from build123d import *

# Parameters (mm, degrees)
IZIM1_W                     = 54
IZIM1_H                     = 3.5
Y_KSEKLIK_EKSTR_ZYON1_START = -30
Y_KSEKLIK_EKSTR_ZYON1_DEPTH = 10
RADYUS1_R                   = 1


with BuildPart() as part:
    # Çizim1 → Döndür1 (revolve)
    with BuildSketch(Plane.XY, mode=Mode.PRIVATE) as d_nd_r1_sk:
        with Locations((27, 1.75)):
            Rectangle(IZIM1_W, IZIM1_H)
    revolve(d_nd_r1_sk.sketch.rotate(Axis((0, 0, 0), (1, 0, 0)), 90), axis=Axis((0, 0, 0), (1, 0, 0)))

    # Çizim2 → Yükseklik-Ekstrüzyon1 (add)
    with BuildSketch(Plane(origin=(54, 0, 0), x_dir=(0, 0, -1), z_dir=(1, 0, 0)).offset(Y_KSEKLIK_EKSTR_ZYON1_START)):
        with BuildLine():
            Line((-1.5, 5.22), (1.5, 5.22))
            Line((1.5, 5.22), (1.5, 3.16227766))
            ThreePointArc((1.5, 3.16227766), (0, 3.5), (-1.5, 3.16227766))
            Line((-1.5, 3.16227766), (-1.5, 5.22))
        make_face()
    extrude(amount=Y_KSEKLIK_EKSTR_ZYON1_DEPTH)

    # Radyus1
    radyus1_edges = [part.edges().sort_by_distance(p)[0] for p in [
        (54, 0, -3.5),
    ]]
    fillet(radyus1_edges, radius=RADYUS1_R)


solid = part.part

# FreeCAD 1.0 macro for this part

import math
import FreeCAD as App
import Part
import Sketcher
Q = App.Units.Quantity


def edges_at(feature, points):
    """Names of the edges that pass closest to the given points."""
    edges = feature.Shape.Edges
    near = lambda p: min(range(len(edges)), key=lambda i: edges[i].distToShape(Part.Vertex(*p))[0])
    return sorted({f"Edge{near(p) + 1}" for p in points})

doc = App.newDocument("Part")
body = doc.addObject("PartDesign::Body", "Body")

sketch1 = doc.addObject("Sketcher::SketchObject", "Sketch")
body.addObject(sketch1)
sketch1.AttachmentSupport = (doc.XY_Plane, [""])
sketch1.MapMode = "FlatFace"
sketch1.addGeometry([
    Part.LineSegment(App.Vector(0, 3.5, 0), App.Vector(0, 0, 0)),
    Part.LineSegment(App.Vector(0, 0, 0), App.Vector(54, 0, 0)),
    Part.LineSegment(App.Vector(54, 0, 0), App.Vector(54, 3.5, 0)),
    Part.LineSegment(App.Vector(54, 3.5, 0), App.Vector(0, 3.5, 0)),
], False)
sketch1.addConstraint([
    Sketcher.Constraint("Coincident", 0, 2, 1, 1),
    Sketcher.Constraint("Coincident", 1, 2, 2, 1),
    Sketcher.Constraint("Coincident", 2, 2, 3, 1),
    Sketcher.Constraint("Coincident", 3, 2, 0, 1),
    Sketcher.Constraint("Vertical", 0),
    Sketcher.Constraint("Horizontal", 1),
    Sketcher.Constraint("Vertical", 2),
    Sketcher.Constraint("Horizontal", 3),
    Sketcher.Constraint("Coincident", 0, 2, -1, 1),
    Sketcher.Constraint("DistanceX", 1, 1, 1, 2, Q("54 mm")),
    Sketcher.Constraint("DistanceY", 0, 2, 0, 1, Q("3.5 mm")),
])
revolution = doc.addObject("PartDesign::Revolution", "Revolution")
body.addObject(revolution)
revolution.Profile = sketch1
revolution.ReferenceAxis = (sketch1, ["H_Axis"])
revolution.Angle = 360

sketch2 = doc.addObject("Sketcher::SketchObject", "Sketch001")
body.addObject(sketch2)
sketch2.AttachmentSupport = (doc.YZ_Plane, [""])
sketch2.MapMode = "FlatFace"
sketch2.AttachmentOffset = App.Placement(App.Vector(0, 0, 24), App.Rotation())
sketch2.addGeometry([
    Part.LineSegment(App.Vector(5.2, -1.5, 0), App.Vector(5.2, 1.5, 0)),
    Part.LineSegment(App.Vector(5.2, 1.5, 0), App.Vector(3.2, 1.5, 0)),
    Part.ArcOfCircle(Part.Circle(App.Vector(0, 0, 0), App.Vector(0, 0, 1), 3.5), math.radians(-25), math.radians(25)),
    Part.LineSegment(App.Vector(3.2, -1.5, 0), App.Vector(5.2, -1.5, 0)),
], False)
sketch2.addConstraint([
    Sketcher.Constraint("Coincident", 0, 2, 1, 1),
    Sketcher.Constraint("Coincident", 1, 2, 2, 2),
    Sketcher.Constraint("Coincident", 2, 1, 3, 1),
    Sketcher.Constraint("Coincident", 3, 2, 0, 1),
    Sketcher.Constraint("Vertical", 0),
    Sketcher.Constraint("Horizontal", 1),
    Sketcher.Constraint("Horizontal", 3),
    Sketcher.Constraint("Coincident", 2, 3, -1, 1),
    Sketcher.Constraint("Vertical", 1, 2, 2, 1),
    Sketcher.Constraint("Radius", 2, Q("3.5 mm")),
    Sketcher.Constraint("DistanceY", 0, 1, 0, 2, Q("3 mm")),
    Sketcher.Constraint("DistanceX", -1, 1, 0, 2, Q("5.22 mm")),
])
pad1 = doc.addObject("PartDesign::Pad", "Pad")
body.addObject(pad1)
pad1.Profile = sketch2
pad1.Length = 10
doc.recompute()

fillet = doc.addObject("PartDesign::Fillet", "Fillet")
body.addObject(fillet)
fillet.Base = (pad1, edges_at(pad1, [(54, 0, -3.5)]))
fillet.Radius = 1

doc.recompute()
